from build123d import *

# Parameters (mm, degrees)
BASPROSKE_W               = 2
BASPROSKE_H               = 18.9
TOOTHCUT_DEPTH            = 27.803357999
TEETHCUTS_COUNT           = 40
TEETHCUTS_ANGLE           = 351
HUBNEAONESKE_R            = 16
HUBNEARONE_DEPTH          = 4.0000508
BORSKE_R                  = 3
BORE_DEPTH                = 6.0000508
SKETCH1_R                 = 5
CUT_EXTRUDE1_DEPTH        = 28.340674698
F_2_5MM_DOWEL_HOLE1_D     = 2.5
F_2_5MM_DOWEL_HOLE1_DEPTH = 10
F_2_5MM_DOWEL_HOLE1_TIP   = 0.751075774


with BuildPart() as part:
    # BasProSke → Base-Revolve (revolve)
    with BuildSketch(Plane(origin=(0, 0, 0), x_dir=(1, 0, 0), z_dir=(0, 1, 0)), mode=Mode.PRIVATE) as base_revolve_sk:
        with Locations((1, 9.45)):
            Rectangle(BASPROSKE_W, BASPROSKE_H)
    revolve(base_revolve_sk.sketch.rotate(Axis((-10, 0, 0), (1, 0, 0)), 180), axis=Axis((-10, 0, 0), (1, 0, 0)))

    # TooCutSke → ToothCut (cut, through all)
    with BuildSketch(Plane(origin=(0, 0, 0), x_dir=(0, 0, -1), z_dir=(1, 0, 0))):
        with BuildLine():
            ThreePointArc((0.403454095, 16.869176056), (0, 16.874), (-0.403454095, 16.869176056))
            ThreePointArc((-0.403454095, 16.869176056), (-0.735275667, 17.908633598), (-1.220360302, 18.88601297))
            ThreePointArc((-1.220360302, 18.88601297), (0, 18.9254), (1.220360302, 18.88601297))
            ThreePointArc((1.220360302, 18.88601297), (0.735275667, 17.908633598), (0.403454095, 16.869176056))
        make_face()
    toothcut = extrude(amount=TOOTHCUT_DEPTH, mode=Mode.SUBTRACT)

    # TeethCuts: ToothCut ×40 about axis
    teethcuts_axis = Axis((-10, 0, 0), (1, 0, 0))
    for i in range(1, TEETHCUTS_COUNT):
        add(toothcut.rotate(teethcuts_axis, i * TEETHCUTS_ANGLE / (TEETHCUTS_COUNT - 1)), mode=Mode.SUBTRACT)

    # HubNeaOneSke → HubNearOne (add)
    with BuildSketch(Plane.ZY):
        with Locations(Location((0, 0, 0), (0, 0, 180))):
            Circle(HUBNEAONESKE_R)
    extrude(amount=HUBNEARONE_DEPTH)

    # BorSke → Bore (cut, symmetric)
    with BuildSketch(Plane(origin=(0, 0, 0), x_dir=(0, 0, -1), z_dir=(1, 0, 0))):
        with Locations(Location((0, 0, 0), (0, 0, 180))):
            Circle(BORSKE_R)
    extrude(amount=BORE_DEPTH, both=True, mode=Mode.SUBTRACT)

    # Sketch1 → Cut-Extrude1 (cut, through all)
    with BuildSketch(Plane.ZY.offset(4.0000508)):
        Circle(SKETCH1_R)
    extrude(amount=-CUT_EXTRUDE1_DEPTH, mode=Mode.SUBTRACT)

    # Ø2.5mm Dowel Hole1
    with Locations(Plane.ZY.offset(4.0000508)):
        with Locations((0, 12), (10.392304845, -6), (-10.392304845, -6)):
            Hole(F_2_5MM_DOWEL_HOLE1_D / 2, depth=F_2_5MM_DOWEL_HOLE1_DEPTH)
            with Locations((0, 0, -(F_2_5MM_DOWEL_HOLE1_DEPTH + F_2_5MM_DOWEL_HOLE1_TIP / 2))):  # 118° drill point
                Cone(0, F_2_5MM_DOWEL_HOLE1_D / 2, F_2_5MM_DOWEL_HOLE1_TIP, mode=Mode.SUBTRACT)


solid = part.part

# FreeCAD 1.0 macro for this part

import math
import FreeCAD as App
import Part
import Sketcher
from FreeCAD import Vector

doc = App.newDocument("Part")
body = doc.addObject("PartDesign::Body", "Body")

# Sketch on XZ plane
sketch1 = body.newObject("Sketcher::SketchObject", "Sketch")
sketch1.AttachmentSupport = (doc.getObject("XZ_Plane"), [""])
sketch1.MapMode = "FlatFace"
sketch1.addGeometry([
    Part.LineSegment(Vector(0, -18.9, 0), Vector(0, 0, 0)),
    Part.LineSegment(Vector(0, 0, 0), Vector(2, 0, 0)),
    Part.LineSegment(Vector(2, 0, 0), Vector(2, -18.9, 0)),
    Part.LineSegment(Vector(2, -18.9, 0), Vector(0, -18.9, 0)),
], False)
sketch1.addConstraint([
    Sketcher.Constraint("Coincident", 0, 2, 1, 1),
    Sketcher.Constraint("Coincident", 1, 2, 2, 1),
    Sketcher.Constraint("Coincident", 2, 2, 3, 1),
    Sketcher.Constraint("Coincident", 3, 2, 0, 1),
    Sketcher.Constraint("Vertical", 0),
    Sketcher.Constraint("Horizontal", 1),
    Sketcher.Constraint("Vertical", 2),
    Sketcher.Constraint("Horizontal", 3),
    Sketcher.Constraint("Coincident", 0, 2, -1, 1),
    Sketcher.Constraint("DistanceX", 1, 1, 1, 2, 2.0),
    Sketcher.Constraint("DistanceY", 0, 1, 0, 2, 18.9),
])
revolution = body.newObject("PartDesign::Revolution", "Revolution")
revolution.Profile = sketch1
revolution.ReferenceAxis = (sketch1, ["H_Axis"])
revolution.Angle = 360

# Sketch on YZ plane
sketch2 = body.newObject("Sketcher::SketchObject", "Sketch001")
sketch2.AttachmentSupport = (doc.getObject("YZ_Plane"), [""])
sketch2.MapMode = "FlatFace"
sketch2.addGeometry([
    Part.ArcOfCircle(Part.Circle(Vector(0, 0, 0), Vector(0, 0, 1), 16.9), math.radians(-1.37), math.radians(1.37)),
    Part.ArcOfCircle(Part.Circle(Vector(15.2, -7.4, 0), Vector(0, 0, 1), 7.2), math.radians(59.26), math.radians(76.64)),
    Part.ArcOfCircle(Part.Circle(Vector(0, 0, 0), Vector(0, 0, 1), 18.9), math.radians(-3.7), math.radians(3.7)),
    Part.ArcOfCircle(Part.Circle(Vector(15.2, 7.4, 0), Vector(0, 0, 1), 7.2), math.radians(-76.64), math.radians(-59.26)),
], False)
sketch2.addConstraint([
    Sketcher.Constraint("Coincident", 0, 1, 1, 2),
    Sketcher.Constraint("Coincident", 1, 1, 2, 1),
    Sketcher.Constraint("Coincident", 2, 2, 3, 2),
    Sketcher.Constraint("Coincident", 3, 1, 0, 2),
    Sketcher.Constraint("Coincident", 0, 3, -1, 1),
    Sketcher.Constraint("Coincident", 2, 3, -1, 1),
    Sketcher.Constraint("Equal", 1, 3),
    Sketcher.Constraint("Symmetric", 1, 3, 3, 3, -1),
    Sketcher.Constraint("Radius", 1, 7.2),
    Sketcher.Constraint("Radius", 0, 16.874002),
    Sketcher.Constraint("Radius", 2, 18.9254),
    Sketcher.Constraint("DistanceY", 1, 1, 3, 3, 8.629),
    Sketcher.Constraint("DistanceY", 1, 3, -1, 1, 7.408639),
])
pocket1 = body.newObject("PartDesign::Pocket", "Pocket")
pocket1.Profile = sketch2
pocket1.Type = "ThroughAll"
pocket1.Reversed = True
doc.recompute()

polarpattern = body.newObject("PartDesign::PolarPattern", "PolarPattern")
polarpattern.Originals = [pocket1]
polarpattern.Axis = (doc.getObject("X_Axis"), [""])
polarpattern.Angle = 360
polarpattern.Occurrences = 40
body.Tip = polarpattern

# Sketch on YZ plane
sketch3 = body.newObject("Sketcher::SketchObject", "Sketch002")
sketch3.AttachmentSupport = (doc.getObject("YZ_Plane"), [""])
sketch3.MapMode = "FlatFace"
sketch3.addGeometry(Part.Circle(Vector(0, 0, 0), Vector(0, 0, 1), 16), False)
sketch3.addConstraint([
    Sketcher.Constraint("Coincident", 0, 3, -1, 1),
    Sketcher.Constraint("Diameter", 0, 32.0),
])
pad1 = body.newObject("PartDesign::Pad", "Pad")
pad1.Profile = sketch3
pad1.Length = 4.000051
pad1.Reversed = True

# Sketch on YZ plane
sketch4 = body.newObject("Sketcher::SketchObject", "Sketch003")
sketch4.AttachmentSupport = (doc.getObject("YZ_Plane"), [""])
sketch4.MapMode = "FlatFace"
sketch4.addGeometry(Part.Circle(Vector(0, 0, 0), Vector(0, 0, 1), 3), False)
sketch4.addConstraint([
    Sketcher.Constraint("Coincident", 0, 3, -1, 1),
    Sketcher.Constraint("Diameter", 0, 6.0),
])
pocket2 = body.newObject("PartDesign::Pocket", "Pocket001")
pocket2.Profile = sketch4
pocket2.Length = 12.000102
pocket2.Midplane = True

# Sketch on YZ plane
sketch5 = body.newObject("Sketcher::SketchObject", "Sketch004")
sketch5.AttachmentSupport = (doc.getObject("YZ_Plane"), [""])
sketch5.MapMode = "FlatFace"
sketch5.AttachmentOffset = App.Placement(Vector(0, 0, -4.000051), App.Rotation())
sketch5.addGeometry(Part.Circle(Vector(0, 0, 0), Vector(0, 0, 1), 5), False)
sketch5.addConstraint([
    Sketcher.Constraint("Coincident", 0, 3, -1, 1),
    Sketcher.Constraint("Diameter", 0, 10.0),
])
pocket3 = body.newObject("PartDesign::Pocket", "Pocket002")
pocket3.Profile = sketch5
pocket3.Type = "ThroughAll"
pocket3.Reversed = True

# Sketch on YZ plane
sketch6 = body.newObject("Sketcher::SketchObject", "Sketch005")
sketch6.AttachmentSupport = (doc.getObject("YZ_Plane"), [""])
sketch6.MapMode = "FlatFace"
sketch6.AttachmentOffset = App.Placement(Vector(0, 0, -4.000051), App.Rotation())
sketch6.addGeometry([
    Part.Circle(Vector(12, 0, 0), Vector(0, 0, 1), 1.2),
    Part.Circle(Vector(-6, 10.4, 0), Vector(0, 0, 1), 1.2),
    Part.Circle(Vector(-6, -10.4, 0), Vector(0, 0, 1), 1.2),
], False)
sketch6.addConstraint([
    Sketcher.Constraint("Equal", 0, 1),
    Sketcher.Constraint("Equal", 1, 2),
    Sketcher.Constraint("Symmetric", 1, 3, 2, 3, -1),
    Sketcher.Constraint("PointOnObject", 0, 3, -1),
    Sketcher.Constraint("Diameter", 0, 2.5),
    Sketcher.Constraint("DistanceX", -1, 1, 0, 3, 12.0),
    Sketcher.Constraint("DistanceX", 1, 3, -1, 1, 6.0),
    Sketcher.Constraint("DistanceY", 2, 3, 1, 3, 20.78461),
])
doc.recompute()
hole = body.newObject("PartDesign::Hole", "Hole")
hole.Profile = sketch6
hole.ThreadType = "None"
hole.Diameter = 2.5
hole.DepthType = "Dimension"
hole.Depth = 10
hole.DrillPoint = "Angled"
hole.DrillPointAngle = 118
hole.Reversed = True

doc.recompute()
